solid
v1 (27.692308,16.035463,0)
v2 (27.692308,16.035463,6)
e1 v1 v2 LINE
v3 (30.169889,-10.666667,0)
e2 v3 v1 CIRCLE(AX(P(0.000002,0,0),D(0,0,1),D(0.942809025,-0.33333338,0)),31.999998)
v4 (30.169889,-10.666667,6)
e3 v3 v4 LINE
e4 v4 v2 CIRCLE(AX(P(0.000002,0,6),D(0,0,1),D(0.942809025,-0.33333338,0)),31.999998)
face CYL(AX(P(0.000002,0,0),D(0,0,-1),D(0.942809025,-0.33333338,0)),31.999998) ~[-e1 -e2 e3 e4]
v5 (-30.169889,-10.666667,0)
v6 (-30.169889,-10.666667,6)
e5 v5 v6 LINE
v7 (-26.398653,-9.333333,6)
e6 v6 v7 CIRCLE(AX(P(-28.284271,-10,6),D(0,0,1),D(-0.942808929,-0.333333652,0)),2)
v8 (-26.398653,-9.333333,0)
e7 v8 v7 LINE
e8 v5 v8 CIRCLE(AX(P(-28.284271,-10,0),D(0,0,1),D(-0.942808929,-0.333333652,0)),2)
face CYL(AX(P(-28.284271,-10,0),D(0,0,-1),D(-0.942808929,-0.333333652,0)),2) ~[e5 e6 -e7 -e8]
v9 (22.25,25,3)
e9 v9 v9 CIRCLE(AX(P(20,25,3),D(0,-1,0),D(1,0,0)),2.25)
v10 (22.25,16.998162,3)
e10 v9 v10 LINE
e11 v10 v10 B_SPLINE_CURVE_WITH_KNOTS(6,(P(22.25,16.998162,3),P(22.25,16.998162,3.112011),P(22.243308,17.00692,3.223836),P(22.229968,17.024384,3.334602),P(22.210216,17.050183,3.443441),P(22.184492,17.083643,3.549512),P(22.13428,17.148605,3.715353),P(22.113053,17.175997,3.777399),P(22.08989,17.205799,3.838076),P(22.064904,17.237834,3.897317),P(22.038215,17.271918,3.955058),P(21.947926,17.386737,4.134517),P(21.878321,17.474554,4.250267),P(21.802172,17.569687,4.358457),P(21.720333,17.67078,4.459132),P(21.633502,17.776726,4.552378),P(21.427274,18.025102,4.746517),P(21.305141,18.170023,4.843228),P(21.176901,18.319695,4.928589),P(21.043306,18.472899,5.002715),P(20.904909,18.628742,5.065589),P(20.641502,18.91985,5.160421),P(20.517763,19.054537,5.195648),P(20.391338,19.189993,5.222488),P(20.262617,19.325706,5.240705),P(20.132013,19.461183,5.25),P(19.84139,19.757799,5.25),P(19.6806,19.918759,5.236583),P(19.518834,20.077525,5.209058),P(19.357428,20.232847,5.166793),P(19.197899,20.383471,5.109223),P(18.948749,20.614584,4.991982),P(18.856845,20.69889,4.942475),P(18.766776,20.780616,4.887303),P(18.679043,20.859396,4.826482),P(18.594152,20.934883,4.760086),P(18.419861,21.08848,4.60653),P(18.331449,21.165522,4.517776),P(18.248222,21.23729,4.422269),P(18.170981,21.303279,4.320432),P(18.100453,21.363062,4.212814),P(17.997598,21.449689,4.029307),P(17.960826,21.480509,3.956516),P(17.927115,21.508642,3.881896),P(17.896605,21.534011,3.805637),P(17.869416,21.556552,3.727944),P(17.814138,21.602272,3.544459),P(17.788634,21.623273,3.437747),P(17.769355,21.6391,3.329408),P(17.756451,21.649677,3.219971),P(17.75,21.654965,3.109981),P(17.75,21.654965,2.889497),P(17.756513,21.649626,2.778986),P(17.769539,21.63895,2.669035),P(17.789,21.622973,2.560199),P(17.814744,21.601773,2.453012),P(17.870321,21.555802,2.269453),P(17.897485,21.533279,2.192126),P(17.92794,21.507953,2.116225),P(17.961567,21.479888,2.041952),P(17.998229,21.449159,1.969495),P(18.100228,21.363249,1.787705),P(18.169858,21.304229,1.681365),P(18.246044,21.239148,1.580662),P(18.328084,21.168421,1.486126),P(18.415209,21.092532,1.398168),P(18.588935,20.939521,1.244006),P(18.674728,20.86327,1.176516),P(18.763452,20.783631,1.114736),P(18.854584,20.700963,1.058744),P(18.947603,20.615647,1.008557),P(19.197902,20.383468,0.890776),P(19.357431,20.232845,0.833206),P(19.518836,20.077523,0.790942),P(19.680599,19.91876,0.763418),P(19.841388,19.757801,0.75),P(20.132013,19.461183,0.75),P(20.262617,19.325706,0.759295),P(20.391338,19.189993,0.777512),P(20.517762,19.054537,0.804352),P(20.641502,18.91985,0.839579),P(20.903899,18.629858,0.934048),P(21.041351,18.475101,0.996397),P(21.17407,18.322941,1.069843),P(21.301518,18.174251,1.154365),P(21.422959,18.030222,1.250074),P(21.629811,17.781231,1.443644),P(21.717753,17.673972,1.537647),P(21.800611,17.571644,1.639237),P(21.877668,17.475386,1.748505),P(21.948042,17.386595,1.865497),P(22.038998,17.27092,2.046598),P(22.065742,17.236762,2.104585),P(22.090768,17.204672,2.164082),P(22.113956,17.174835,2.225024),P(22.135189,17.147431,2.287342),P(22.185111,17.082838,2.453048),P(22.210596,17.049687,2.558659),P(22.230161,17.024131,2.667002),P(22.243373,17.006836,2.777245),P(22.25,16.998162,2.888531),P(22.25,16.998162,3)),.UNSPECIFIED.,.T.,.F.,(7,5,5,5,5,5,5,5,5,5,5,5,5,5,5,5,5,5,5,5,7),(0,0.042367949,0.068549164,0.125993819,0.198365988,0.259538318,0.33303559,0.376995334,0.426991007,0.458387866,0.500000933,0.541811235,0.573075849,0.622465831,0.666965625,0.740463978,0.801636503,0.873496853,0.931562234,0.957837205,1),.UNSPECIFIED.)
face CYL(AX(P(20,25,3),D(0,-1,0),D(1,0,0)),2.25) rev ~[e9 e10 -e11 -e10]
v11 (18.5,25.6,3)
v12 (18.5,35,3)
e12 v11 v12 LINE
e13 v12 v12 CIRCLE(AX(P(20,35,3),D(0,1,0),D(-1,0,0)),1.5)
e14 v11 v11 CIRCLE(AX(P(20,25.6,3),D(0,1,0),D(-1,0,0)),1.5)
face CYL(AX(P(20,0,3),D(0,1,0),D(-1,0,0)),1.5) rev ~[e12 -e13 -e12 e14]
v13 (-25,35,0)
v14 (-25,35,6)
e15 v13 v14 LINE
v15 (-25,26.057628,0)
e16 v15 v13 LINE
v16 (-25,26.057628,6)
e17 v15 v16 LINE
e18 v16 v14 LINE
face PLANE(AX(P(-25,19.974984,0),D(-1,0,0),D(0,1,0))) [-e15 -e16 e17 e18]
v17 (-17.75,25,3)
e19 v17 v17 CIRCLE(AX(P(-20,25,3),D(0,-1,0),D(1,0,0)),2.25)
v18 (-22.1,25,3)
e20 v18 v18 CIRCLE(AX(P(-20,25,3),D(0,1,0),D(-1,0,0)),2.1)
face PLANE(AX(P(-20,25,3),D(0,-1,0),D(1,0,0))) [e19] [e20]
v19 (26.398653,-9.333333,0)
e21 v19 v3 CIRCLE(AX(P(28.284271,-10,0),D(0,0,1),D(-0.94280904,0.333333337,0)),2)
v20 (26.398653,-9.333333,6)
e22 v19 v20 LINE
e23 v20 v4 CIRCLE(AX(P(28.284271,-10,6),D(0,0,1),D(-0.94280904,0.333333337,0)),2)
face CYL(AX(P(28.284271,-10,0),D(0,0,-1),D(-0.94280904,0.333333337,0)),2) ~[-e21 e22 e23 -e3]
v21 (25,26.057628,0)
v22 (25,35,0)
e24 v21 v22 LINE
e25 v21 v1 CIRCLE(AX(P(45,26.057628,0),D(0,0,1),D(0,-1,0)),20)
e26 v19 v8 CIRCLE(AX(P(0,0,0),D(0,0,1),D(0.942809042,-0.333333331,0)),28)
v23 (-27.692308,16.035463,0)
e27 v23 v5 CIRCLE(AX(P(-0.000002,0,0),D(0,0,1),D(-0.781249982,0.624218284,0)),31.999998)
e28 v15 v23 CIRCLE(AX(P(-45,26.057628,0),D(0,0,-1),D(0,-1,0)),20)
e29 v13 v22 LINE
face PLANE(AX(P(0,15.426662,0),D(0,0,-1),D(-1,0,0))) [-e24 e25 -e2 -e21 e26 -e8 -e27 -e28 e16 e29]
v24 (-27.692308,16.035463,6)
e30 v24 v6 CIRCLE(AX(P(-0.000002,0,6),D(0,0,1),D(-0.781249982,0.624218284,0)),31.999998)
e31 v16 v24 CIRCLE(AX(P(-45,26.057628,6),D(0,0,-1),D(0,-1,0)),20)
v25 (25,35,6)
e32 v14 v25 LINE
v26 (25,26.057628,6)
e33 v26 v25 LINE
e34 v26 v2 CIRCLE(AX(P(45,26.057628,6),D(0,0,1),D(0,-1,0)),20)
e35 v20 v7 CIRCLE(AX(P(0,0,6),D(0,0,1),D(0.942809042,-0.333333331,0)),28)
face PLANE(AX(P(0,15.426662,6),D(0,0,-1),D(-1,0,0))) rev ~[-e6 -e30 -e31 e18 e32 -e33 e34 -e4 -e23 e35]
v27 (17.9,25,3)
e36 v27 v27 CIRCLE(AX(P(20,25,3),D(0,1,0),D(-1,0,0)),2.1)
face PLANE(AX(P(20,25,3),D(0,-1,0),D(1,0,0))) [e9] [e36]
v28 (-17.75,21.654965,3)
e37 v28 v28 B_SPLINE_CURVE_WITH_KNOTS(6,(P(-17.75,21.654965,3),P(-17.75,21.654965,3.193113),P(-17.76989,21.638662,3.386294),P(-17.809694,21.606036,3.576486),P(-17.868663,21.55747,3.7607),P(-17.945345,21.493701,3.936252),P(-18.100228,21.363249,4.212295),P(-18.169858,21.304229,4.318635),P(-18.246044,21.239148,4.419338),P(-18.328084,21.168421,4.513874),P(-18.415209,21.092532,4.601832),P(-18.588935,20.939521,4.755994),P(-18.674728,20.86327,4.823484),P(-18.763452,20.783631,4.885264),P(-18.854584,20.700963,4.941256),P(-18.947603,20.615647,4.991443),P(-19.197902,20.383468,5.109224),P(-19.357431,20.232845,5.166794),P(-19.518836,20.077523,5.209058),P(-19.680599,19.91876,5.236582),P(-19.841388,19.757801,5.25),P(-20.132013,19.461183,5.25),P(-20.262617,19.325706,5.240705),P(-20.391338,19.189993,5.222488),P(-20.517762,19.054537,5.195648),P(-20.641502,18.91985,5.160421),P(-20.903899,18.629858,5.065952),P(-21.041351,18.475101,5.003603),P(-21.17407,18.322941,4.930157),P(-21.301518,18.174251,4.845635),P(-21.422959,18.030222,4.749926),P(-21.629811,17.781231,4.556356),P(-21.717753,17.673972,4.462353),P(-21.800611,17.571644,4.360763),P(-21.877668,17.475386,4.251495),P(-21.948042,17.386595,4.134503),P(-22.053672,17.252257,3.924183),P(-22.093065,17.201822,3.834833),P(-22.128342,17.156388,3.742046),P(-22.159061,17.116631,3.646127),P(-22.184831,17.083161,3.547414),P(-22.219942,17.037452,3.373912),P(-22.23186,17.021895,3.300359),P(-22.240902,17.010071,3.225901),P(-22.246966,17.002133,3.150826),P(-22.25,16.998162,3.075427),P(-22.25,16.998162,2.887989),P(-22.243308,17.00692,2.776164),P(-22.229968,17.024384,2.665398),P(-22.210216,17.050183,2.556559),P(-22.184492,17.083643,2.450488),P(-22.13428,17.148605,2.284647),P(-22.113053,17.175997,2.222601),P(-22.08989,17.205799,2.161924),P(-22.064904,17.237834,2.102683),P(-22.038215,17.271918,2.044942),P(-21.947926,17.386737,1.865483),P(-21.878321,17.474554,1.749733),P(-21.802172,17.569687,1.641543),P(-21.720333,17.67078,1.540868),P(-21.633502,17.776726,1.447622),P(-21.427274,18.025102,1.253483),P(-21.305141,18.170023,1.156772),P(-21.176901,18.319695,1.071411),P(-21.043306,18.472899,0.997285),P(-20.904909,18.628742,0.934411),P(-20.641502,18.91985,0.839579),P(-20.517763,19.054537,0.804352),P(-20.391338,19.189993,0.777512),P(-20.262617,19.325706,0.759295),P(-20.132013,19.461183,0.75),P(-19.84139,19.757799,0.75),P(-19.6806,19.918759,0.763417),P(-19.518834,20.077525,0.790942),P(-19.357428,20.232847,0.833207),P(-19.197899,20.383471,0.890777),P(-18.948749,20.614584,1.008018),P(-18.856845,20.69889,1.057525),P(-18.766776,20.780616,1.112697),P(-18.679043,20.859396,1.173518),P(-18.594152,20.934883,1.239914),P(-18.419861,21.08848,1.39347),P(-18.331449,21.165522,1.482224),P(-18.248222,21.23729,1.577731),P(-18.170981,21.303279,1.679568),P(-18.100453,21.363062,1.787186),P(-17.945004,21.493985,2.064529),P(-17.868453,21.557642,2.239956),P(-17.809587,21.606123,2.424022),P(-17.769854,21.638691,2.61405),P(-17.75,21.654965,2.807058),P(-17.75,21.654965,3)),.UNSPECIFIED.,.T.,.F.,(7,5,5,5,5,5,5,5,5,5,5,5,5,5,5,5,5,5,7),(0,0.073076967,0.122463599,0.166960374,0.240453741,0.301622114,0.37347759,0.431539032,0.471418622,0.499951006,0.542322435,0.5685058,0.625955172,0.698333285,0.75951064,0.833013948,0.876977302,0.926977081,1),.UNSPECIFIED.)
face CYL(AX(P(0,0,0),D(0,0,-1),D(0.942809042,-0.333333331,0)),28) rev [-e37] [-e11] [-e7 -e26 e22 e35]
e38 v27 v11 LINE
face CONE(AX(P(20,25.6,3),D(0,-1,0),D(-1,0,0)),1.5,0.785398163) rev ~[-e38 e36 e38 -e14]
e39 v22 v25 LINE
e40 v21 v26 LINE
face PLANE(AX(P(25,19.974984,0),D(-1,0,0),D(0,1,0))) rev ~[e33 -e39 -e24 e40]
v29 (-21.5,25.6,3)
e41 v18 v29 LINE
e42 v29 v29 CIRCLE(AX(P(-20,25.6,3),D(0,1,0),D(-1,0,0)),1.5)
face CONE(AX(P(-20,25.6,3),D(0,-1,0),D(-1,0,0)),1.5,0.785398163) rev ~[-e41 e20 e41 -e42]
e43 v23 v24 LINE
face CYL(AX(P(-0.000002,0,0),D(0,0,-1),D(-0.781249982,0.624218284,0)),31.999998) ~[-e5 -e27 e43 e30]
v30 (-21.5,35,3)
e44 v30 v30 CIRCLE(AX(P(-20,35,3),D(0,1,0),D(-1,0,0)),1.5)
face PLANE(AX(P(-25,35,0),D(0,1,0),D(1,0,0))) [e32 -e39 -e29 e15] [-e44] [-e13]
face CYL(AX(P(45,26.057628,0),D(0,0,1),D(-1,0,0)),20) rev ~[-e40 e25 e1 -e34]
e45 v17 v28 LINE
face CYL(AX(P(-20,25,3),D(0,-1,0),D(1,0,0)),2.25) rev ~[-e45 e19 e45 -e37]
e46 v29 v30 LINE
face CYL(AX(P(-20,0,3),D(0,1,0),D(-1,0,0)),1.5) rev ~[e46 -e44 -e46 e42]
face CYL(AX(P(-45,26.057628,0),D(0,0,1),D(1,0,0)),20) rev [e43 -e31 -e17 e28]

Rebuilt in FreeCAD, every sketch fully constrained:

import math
import FreeCAD as App
import Part
import Sketcher
from FreeCAD import Vector


def edges_at(feature, points):
    """Names of the edges that pass closest to the given points."""
    edges = feature.Shape.Edges
    near = lambda p: min(range(len(edges)), key=lambda i: edges[i].distToShape(Part.Vertex(*p))[0])
    return sorted({f"Edge{near(p) + 1}" for p in points})

doc = App.newDocument("Part")
body = doc.addObject("PartDesign::Body", "Body")

# Sketch on XY plane
sketch1 = body.newObject("Sketcher::SketchObject", "Sketch")
sketch1.AttachmentSupport = (doc.getObject("XY_Plane"), [""])
sketch1.MapMode = "FlatFace"
sketch1.addGeometry([
    Part.ArcOfCircle(Part.Circle(Vector(0, 0, 0), Vector(0, 0, 1), 28), math.radians(-19), math.radians(199)),  # 0
    Part.ArcOfCircle(Part.Circle(Vector(28.3, -10, 0), Vector(0, 0, 1), 2), math.radians(161), math.radians(341)),  # 1
    Part.ArcOfCircle(Part.Circle(Vector(0, 0, 0), Vector(0, 0, 1), 32), math.radians(-19), math.radians(39)),  # 2
    Part.LineSegment(Vector(25, 20, 0), Vector(25, 35, 0)),  # 3
    Part.LineSegment(Vector(25, 35, 0), Vector(-25, 35, 0)),  # 4
    Part.LineSegment(Vector(-25, 35, 0), Vector(-25, 20, 0)),  # 5
    Part.ArcOfCircle(Part.Circle(Vector(0, 0, 0), Vector(0, 0, 1), 32), math.radians(141), math.radians(199)),  # 6
    Part.ArcOfCircle(Part.Circle(Vector(-28.3, -10, 0), Vector(0, 0, 1), 2), math.radians(-161), math.radians(19)),  # 7
], False)
sketch1.addConstraint([
    Sketcher.Constraint("Tangent", 0, 1, 1, 1),
    Sketcher.Constraint("Tangent", 1, 2, 2, 1),
    Sketcher.Constraint("Coincident", 2, 2, 3, 1),
    Sketcher.Constraint("Coincident", 3, 2, 4, 1),
    Sketcher.Constraint("Coincident", 4, 2, 5, 1),
    Sketcher.Constraint("Coincident", 5, 2, 6, 1),
    Sketcher.Constraint("Tangent", 6, 2, 7, 1),
    Sketcher.Constraint("Tangent", 7, 2, 0, 2),
    Sketcher.Constraint("Vertical", 3),
    Sketcher.Constraint("Horizontal", 4),
    Sketcher.Constraint("Vertical", 5),
    Sketcher.Constraint("Coincident", 0, 3, -1, 1),
    Sketcher.Constraint("Coincident", 2, 3, -1, 1),
    Sketcher.Constraint("Coincident", 6, 3, -1, 1),
    Sketcher.Constraint("Equal", 2, 6),
    Sketcher.Constraint("Horizontal", 1, 3, 7, 3),
    Sketcher.Constraint("Horizontal", 2, 2, 5, 2),
    Sketcher.Constraint("Radius", 0, 28.0),
    Sketcher.Constraint("Radius", 1, 2.0),
    Sketcher.Constraint("DistanceX", 4, 2, 4, 1, 50.0),
    Sketcher.Constraint("DistanceY", 1, 3, -1, 1, 10.0),
    Sketcher.Constraint("DistanceY", -1, 1, 3, 2, 35.0),
])
pad1 = body.newObject("PartDesign::Pad", "Pad")
pad1.Profile = sketch1
pad1.Length = 6

# Sketch on XZ plane
sketch2 = body.newObject("Sketcher::SketchObject", "Sketch001")
sketch2.AttachmentSupport = (doc.getObject("XZ_Plane"), [""])
sketch2.MapMode = "FlatFace"
sketch2.addGeometry([
    Part.Circle(Vector(-20, 3, 0), Vector(0, 0, 1), 1.5),
    Part.Circle(Vector(20, 3, 0), Vector(0, 0, 1), 1.5),
], False)
sketch2.addConstraint([
    Sketcher.Constraint("Equal", 0, 1),
    Sketcher.Constraint("Symmetric", 0, 3, 1, 3, -2),
    Sketcher.Constraint("Diameter", 0, 3.0),
    Sketcher.Constraint("DistanceX", 0, 3, -1, 1, 20.0),
    Sketcher.Constraint("DistanceY", -1, 1, 0, 3, 3.0),
])
doc.recompute()
hole = body.newObject("PartDesign::Hole", "Hole")
hole.Profile = sketch2
hole.ThreadType = "None"
hole.Diameter = 3
hole.DepthType = "ThroughAll"
hole.HoleCutType = "Counterbore"
hole.HoleCutDiameter = 4.5
hole.HoleCutDepth = 25
doc.recompute()

chamfer = body.newObject("PartDesign::Chamfer", "Chamfer")
chamfer.Base = (hole, edges_at(hole, [(21.5, 25, 3), (-18.5, 25, 3)]))
chamfer.Size = 0.6
doc.recompute()

fillet = body.newObject("PartDesign::Fillet", "Fillet")
fillet.Base = (chamfer, edges_at(chamfer, [(-25, 19.975, 3), (25, 19.975, 3)]))
fillet.Radius = 20

doc.recompute()
